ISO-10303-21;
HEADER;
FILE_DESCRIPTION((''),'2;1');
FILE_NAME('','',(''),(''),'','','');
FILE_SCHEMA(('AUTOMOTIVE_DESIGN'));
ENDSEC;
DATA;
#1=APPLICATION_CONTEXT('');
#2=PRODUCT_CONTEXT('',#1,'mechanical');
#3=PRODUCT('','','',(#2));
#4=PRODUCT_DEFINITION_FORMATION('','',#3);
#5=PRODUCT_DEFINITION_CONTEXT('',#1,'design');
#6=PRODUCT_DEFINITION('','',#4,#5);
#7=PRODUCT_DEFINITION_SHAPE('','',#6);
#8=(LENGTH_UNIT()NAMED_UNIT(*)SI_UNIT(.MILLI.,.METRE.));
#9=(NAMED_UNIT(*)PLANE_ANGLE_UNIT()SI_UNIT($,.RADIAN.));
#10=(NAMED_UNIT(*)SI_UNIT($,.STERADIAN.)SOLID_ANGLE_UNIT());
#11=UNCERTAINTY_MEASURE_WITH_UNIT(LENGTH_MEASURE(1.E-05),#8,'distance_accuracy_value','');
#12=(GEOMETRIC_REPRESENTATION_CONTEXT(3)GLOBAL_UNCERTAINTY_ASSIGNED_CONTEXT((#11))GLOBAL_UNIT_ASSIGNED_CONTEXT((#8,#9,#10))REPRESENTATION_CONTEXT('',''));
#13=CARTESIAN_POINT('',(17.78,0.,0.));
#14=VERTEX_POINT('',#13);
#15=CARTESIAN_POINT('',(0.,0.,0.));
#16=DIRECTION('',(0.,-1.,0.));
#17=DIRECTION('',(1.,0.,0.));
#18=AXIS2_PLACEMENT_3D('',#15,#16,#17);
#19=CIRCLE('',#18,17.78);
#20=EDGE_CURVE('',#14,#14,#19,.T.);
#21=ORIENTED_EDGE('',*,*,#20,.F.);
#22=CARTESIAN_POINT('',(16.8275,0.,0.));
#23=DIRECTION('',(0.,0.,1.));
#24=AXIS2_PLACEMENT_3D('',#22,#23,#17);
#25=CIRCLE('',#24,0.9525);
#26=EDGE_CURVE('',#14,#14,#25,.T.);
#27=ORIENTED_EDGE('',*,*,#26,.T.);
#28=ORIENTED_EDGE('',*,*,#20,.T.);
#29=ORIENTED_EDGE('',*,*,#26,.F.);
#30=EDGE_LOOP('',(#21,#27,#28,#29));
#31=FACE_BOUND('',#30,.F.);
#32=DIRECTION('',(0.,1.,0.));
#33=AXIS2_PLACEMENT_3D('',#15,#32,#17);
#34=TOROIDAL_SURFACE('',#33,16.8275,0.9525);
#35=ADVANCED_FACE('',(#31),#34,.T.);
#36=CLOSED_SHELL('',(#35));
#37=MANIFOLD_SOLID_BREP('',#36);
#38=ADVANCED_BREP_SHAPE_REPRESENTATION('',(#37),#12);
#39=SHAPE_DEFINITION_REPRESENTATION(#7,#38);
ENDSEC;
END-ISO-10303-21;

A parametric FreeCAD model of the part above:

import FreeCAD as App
import Part
import Sketcher
from FreeCAD import Vector
Q = App.Units.Quantity

doc = App.newDocument("Part")
body = doc.addObject("PartDesign::Body", "Body")

sketch1 = body.newObject("Sketcher::SketchObject", "Sketch")
sketch1.AttachmentSupport = (doc.getObject("XY_Plane"), [""])
sketch1.MapMode = "FlatFace"
sketch1.addGeometry(Part.Circle(Vector(16.8275, 0, 0), Vector(0, 0, 1), 0.9525), False)
sketch1.addConstraint(Sketcher.Constraint("PointOnObject", 0, 3, -1))
sketch1.addConstraint(Sketcher.Constraint("Diameter", 0, Q("0.075 in")))
sketch1.addConstraint(Sketcher.Constraint("DistanceX", -1, 1, 0, 3, Q("0.6625 in")))
revolution = body.newObject("PartDesign::Revolution", "Revolution")
revolution.Profile = sketch1
revolution.ReferenceAxis = (sketch1, ["V_Axis"])
revolution.Angle = 360

doc.recompute()
